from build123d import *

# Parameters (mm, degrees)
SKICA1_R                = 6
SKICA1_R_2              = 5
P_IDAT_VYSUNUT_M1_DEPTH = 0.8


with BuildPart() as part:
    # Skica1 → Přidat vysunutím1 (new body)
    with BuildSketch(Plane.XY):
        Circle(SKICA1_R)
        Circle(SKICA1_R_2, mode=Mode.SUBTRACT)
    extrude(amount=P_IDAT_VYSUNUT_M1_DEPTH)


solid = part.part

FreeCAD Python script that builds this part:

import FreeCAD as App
import Part
import Sketcher
Q = App.Units.Quantity

doc = App.newDocument("Part")
params = doc.addObject("Spreadsheet::Sheet", "Params")
for row, (alias, value) in enumerate([
    ("sketch1_diameter", "12 mm"),
    ("sketch1_diameter2", "10 mm"),
    ("pad1_length", "0.8 mm"),
], start=1):
    params.set(f"A{row}", alias)
    params.set(f"B{row}", "=" + value)
    params.setAlias(f"B{row}", alias)

body = doc.addObject("PartDesign::Body", "Body")

sketch1 = body.newObject("Sketcher::SketchObject", "Sketch")
sketch1.AttachmentSupport = (doc.getObject("XY_Plane"), [""])
sketch1.MapMode = "FlatFace"
sketch1.addGeometry(Part.Circle(App.Vector(0, 0, 0), App.Vector(0, 0, 1), 6), False)
sketch1.addGeometry(Part.Circle(App.Vector(0, 0, 0), App.Vector(0, 0, 1), 5), False)
sketch1.addConstraint(Sketcher.Constraint("Coincident", 0, 3, -1, 1))
sketch1.addConstraint(Sketcher.Constraint("Coincident", 1, 3, -1, 1))
sketch1.addConstraint(Sketcher.Constraint("Diameter", 0, Q("12 mm")))
sketch1.addConstraint(Sketcher.Constraint("Diameter", 1, Q("10 mm")))
sketch1.setExpression("Constraints[2]", "Params.sketch1_diameter")
sketch1.setExpression("Constraints[3]", "Params.sketch1_diameter2")
pad1 = body.newObject("PartDesign::Pad", "Pad")
pad1.Profile = sketch1
pad1.setExpression("Length", "Params.pad1_length")

doc.recompute()
